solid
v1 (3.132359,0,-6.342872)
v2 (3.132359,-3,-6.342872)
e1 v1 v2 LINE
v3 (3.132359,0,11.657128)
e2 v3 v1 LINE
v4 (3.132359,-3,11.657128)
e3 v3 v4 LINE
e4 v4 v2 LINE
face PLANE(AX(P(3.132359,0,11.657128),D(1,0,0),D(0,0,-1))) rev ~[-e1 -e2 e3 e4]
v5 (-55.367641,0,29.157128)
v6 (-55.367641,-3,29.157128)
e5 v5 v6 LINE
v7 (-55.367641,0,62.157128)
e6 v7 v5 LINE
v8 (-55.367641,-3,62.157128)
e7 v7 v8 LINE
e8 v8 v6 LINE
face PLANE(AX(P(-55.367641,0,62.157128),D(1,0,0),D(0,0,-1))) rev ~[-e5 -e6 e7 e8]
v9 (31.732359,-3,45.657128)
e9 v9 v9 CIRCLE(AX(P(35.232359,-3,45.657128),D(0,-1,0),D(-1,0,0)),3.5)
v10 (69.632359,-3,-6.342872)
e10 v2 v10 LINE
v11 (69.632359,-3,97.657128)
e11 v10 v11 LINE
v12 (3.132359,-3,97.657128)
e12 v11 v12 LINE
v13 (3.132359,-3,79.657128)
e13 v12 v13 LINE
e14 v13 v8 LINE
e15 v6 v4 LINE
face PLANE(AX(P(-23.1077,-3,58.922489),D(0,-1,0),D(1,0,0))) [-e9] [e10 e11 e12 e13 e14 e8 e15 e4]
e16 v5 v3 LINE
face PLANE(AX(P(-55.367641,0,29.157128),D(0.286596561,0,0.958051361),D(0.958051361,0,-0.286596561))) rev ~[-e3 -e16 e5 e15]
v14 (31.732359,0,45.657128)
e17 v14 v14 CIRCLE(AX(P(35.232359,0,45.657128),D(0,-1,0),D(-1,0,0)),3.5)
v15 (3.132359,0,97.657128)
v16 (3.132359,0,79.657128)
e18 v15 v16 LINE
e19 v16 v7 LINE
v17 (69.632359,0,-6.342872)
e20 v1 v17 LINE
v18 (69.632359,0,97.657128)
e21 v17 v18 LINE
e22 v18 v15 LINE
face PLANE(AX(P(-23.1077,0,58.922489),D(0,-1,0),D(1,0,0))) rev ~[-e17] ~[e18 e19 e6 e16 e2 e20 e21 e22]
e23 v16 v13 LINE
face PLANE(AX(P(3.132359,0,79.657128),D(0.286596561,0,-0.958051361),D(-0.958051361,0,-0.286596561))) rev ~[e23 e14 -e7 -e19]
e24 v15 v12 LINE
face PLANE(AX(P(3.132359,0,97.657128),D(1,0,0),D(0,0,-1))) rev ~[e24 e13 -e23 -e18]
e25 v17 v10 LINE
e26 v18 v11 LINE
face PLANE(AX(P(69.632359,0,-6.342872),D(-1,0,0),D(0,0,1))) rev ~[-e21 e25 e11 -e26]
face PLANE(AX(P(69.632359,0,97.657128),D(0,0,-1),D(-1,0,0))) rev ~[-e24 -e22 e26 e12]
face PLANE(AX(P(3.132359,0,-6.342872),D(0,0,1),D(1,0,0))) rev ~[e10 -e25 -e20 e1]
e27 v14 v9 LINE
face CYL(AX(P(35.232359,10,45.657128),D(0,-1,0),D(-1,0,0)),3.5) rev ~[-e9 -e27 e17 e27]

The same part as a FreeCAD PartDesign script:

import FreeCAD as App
import Part
import Sketcher

V = App.Vector
Q = App.Units.Quantity

doc = App.newDocument("Part")
body = doc.addObject("PartDesign::Body", "Body")

# Sketch on XZ plane
sketch1 = body.newObject("Sketcher::SketchObject", "Sketch")
sketch1.AttachmentSupport = (doc.getObject("XZ_Plane"), [""])
sketch1.MapMode = "FlatFace"
sketch1.addGeometry(Part.LineSegment(V(3, 80, 0), V(-55, 62, 0)), False)
sketch1.addGeometry(Part.LineSegment(V(-55, 62, 0), V(-55, 29, 0)), False)
sketch1.addGeometry(Part.LineSegment(V(-55, 29, 0), V(3, 12, 0)), False)
sketch1.addGeometry(Part.LineSegment(V(3, 12, 0), V(3, -6, 0)), False)
sketch1.addGeometry(Part.LineSegment(V(3, -6, 0), V(70, -6, 0)), False)
sketch1.addGeometry(Part.LineSegment(V(70, -6, 0), V(70, 98, 0)), False)
sketch1.addGeometry(Part.LineSegment(V(70, 98, 0), V(3, 98, 0)), False)
sketch1.addGeometry(Part.LineSegment(V(3, 98, 0), V(3, 80, 0)), False)
sketch1.addConstraint(Sketcher.Constraint("Coincident", 0, 2, 1, 1))
sketch1.addConstraint(Sketcher.Constraint("Coincident", 1, 2, 2, 1))
sketch1.addConstraint(Sketcher.Constraint("Coincident", 2, 2, 3, 1))
sketch1.addConstraint(Sketcher.Constraint("Coincident", 3, 2, 4, 1))
sketch1.addConstraint(Sketcher.Constraint("Coincident", 4, 2, 5, 1))
sketch1.addConstraint(Sketcher.Constraint("Coincident", 5, 2, 6, 1))
sketch1.addConstraint(Sketcher.Constraint("Coincident", 6, 2, 7, 1))
sketch1.addConstraint(Sketcher.Constraint("Coincident", 7, 2, 0, 1))
sketch1.addConstraint(Sketcher.Constraint("Vertical", 1))
sketch1.addConstraint(Sketcher.Constraint("Vertical", 3))
sketch1.addConstraint(Sketcher.Constraint("Horizontal", 4))
sketch1.addConstraint(Sketcher.Constraint("Vertical", 5))
sketch1.addConstraint(Sketcher.Constraint("Horizontal", 6))
sketch1.addConstraint(Sketcher.Constraint("Vertical", 7))
sketch1.addConstraint(Sketcher.Constraint("Vertical", 3, 2, 6, 2))
sketch1.addConstraint(Sketcher.Constraint("Equal", 3, 7))
sketch1.addConstraint(Sketcher.Constraint("Equal", 0, 2))
sketch1.addConstraint(Sketcher.Constraint("DistanceY", 1, 2, 1, 1, Q("33 mm")))
sketch1.addConstraint(Sketcher.Constraint("DistanceY", 3, 2, 3, 1, Q("18 mm")))
sketch1.addConstraint(Sketcher.Constraint("DistanceY", 5, 1, 5, 2, Q("104 mm")))
sketch1.addConstraint(Sketcher.Constraint("DistanceX", 4, 1, 4, 2, Q("66.5 mm")))
sketch1.addConstraint(Sketcher.Constraint("DistanceX", 1, 2, 4, 2, Q("125 mm")))
sketch1.addConstraint(Sketcher.Constraint("DistanceX", 0, 2, -1, 1, Q("55.367641 mm")))
sketch1.addConstraint(Sketcher.Constraint("DistanceY", -1, 1, 0, 2, Q("62.157128 mm")))
pad1 = body.newObject("PartDesign::Pad", "Pad")
pad1.Profile = sketch1
pad1.Length = 3

# Sketch on XZ plane
sketch2 = body.newObject("Sketcher::SketchObject", "Sketch001")
sketch2.AttachmentSupport = (doc.getObject("XZ_Plane"), [""])
sketch2.MapMode = "FlatFace"
sketch2.addGeometry(Part.Circle(V(35.2, 45.7, 0), V(0, 0, 1), 3.5), False)
sketch2.addConstraint(Sketcher.Constraint("Diameter", 0, Q("7 mm")))
sketch2.addConstraint(Sketcher.Constraint("DistanceX", -1, 1, 0, 3, Q("35.232359 mm")))
sketch2.addConstraint(Sketcher.Constraint("DistanceY", -1, 1, 0, 3, Q("45.657128 mm")))
doc.recompute()
hole = body.newObject("PartDesign::Hole", "Hole")
hole.Profile = sketch2
hole.ThreadType = "None"
hole.Diameter = 7
hole.DepthType = "Dimension"
hole.Depth = 10
hole.DrillPoint = "Angled"
hole.DrillPointAngle = 118
hole.Reversed = True

doc.recompute()
